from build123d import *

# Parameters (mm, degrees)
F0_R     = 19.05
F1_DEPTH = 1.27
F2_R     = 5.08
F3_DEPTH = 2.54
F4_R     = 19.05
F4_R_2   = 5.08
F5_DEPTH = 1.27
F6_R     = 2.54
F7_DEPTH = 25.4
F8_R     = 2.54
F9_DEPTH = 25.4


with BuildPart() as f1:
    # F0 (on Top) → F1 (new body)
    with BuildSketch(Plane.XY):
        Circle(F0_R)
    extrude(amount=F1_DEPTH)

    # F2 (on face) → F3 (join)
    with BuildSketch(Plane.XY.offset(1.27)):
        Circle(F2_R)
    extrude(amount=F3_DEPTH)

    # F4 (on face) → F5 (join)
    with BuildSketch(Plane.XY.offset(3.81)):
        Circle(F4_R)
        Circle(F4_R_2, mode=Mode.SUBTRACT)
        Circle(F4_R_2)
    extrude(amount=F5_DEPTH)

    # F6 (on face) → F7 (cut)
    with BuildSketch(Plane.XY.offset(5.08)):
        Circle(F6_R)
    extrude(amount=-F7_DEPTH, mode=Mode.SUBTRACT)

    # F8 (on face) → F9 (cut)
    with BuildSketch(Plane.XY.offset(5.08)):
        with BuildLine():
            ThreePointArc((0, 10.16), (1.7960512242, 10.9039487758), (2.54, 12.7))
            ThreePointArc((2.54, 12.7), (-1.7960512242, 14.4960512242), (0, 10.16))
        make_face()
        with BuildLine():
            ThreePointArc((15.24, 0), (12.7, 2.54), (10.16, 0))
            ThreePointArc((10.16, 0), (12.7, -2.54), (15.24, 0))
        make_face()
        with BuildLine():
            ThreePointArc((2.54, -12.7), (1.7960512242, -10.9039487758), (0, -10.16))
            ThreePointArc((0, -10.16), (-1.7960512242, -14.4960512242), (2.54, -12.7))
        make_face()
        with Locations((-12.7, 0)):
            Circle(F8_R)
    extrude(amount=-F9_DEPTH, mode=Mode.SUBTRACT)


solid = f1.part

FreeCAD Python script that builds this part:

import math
import FreeCAD as App
import Part
import Sketcher
from FreeCAD import Vector
Q = App.Units.Quantity

doc = App.newDocument("Part")
body = doc.addObject("PartDesign::Body", "Body")

sketch1 = body.newObject("Sketcher::SketchObject", "Sketch")
sketch1.AttachmentSupport = (doc.getObject("XY_Plane"), [""])
sketch1.MapMode = "FlatFace"
sketch1.addGeometry(Part.Circle(Vector(0, 0, 0), Vector(0, 0, 1), 19), False)
sketch1.addConstraint(Sketcher.Constraint("Coincident", 0, 3, -1, 1))
sketch1.addConstraint(Sketcher.Constraint("Diameter", 0, Q("1.5 in")))
pad1 = body.newObject("PartDesign::Pad", "Pad")
pad1.Profile = sketch1
pad1.Length = Q("0.05 in")

sketch2 = body.newObject("Sketcher::SketchObject", "Sketch001")
sketch2.AttachmentSupport = (doc.getObject("XY_Plane"), [""])
sketch2.MapMode = "FlatFace"
sketch2.AttachmentOffset = App.Placement(Vector(0, 0, 0.05 * 25.4), App.Rotation())
sketch2.addGeometry(Part.Circle(Vector(0, 0, 0), Vector(0, 0, 1), 5), False)
sketch2.addConstraint(Sketcher.Constraint("Coincident", 0, 3, -1, 1))
sketch2.addConstraint(Sketcher.Constraint("Diameter", 0, Q("0.4 in")))
pad2 = body.newObject("PartDesign::Pad", "Pad001")
pad2.Profile = sketch2
pad2.Length = Q("0.1 in")

sketch3 = body.newObject("Sketcher::SketchObject", "Sketch002")
sketch3.AttachmentSupport = (doc.getObject("XY_Plane"), [""])
sketch3.MapMode = "FlatFace"
sketch3.AttachmentOffset = App.Placement(Vector(0, 0, 0.15 * 25.4), App.Rotation())
sketch3.addGeometry(Part.Circle(Vector(0, 0, 0), Vector(0, 0, 1), 19), False)
sketch3.addConstraint(Sketcher.Constraint("Coincident", 0, 3, -1, 1))
sketch3.addConstraint(Sketcher.Constraint("Diameter", 0, Q("1.5 in")))
pad3 = body.newObject("PartDesign::Pad", "Pad002")
pad3.Profile = sketch3
pad3.Length = Q("0.05 in")

sketch4 = body.newObject("Sketcher::SketchObject", "Sketch003")
sketch4.AttachmentSupport = (doc.getObject("XY_Plane"), [""])
sketch4.MapMode = "FlatFace"
sketch4.AttachmentOffset = App.Placement(Vector(0, 0, 0.2 * 25.4), App.Rotation())
sketch4.addGeometry(Part.Circle(Vector(0, 0, 0), Vector(0, 0, 1), 2.5), False)
sketch4.addConstraint(Sketcher.Constraint("Coincident", 0, 3, -1, 1))
sketch4.addConstraint(Sketcher.Constraint("Diameter", 0, Q("0.2 in")))
pocket1 = body.newObject("PartDesign::Pocket", "Pocket")
pocket1.Profile = sketch4
pocket1.Length = Q("1 in")

sketch5 = body.newObject("Sketcher::SketchObject", "Sketch004")
sketch5.AttachmentSupport = (doc.getObject("XY_Plane"), [""])
sketch5.MapMode = "FlatFace"
sketch5.AttachmentOffset = App.Placement(Vector(0, 0, 0.2 * 25.4), App.Rotation())
sketch5.addGeometry(Part.ArcOfCircle(Part.Circle(Vector(0, 12.7, 0), Vector(0, 0, 1), 2.5), math.radians(-90), math.radians(0)), False)
sketch5.addGeometry(Part.ArcOfCircle(Part.Circle(Vector(0, 12.7, 0), Vector(0, 0, 1), 2.5), math.radians(0), math.radians(270)), False)
sketch5.addGeometry(Part.Circle(Vector(12.7, 0, 0), Vector(0, 0, 1), 2.5), False)
sketch5.addGeometry(Part.ArcOfCircle(Part.Circle(Vector(0, -12.7, 0), Vector(0, 0, 1), 2.5), math.radians(0), math.radians(90)), False)
sketch5.addGeometry(Part.ArcOfCircle(Part.Circle(Vector(0, -12.7, 0), Vector(0, 0, 1), 2.5), math.radians(90), math.radians(360)), False)
sketch5.addGeometry(Part.Circle(Vector(-12.7, 0, 0), Vector(0, 0, 1), 2.5), False)
sketch5.addConstraint(Sketcher.Constraint("Tangent", 0, 1, 1, 2))
sketch5.addConstraint(Sketcher.Constraint("Coincident", 1, 1, 0, 2))
sketch5.addConstraint(Sketcher.Constraint("Tangent", 3, 1, 4, 2))
sketch5.addConstraint(Sketcher.Constraint("Coincident", 4, 1, 3, 2))
sketch5.addConstraint(Sketcher.Constraint("Equal", 1, 2))
sketch5.addConstraint(Sketcher.Constraint("Equal", 2, 3))
sketch5.addConstraint(Sketcher.Constraint("Equal", 4, 5))
sketch5.addConstraint(Sketcher.Constraint("Symmetric", 0, 3, 3, 3, -1, 1))
sketch5.addConstraint(Sketcher.Constraint("Symmetric", 2, 3, 5, 3, -1, 1))
sketch5.addConstraint(Sketcher.Constraint("Symmetric", 1, 1, 3, 1, -1))
sketch5.addConstraint(Sketcher.Constraint("PointOnObject", 2, 3, -1))
sketch5.addConstraint(Sketcher.Constraint("PointOnObject", 0, 1, -2))
sketch5.addConstraint(Sketcher.Constraint("PointOnObject", 4, 1, -2))
sketch5.addConstraint(Sketcher.Constraint("Horizontal", 0, 3, 1, 1))
sketch5.addConstraint(Sketcher.Constraint("Diameter", 2, Q("0.2 in")))
sketch5.addConstraint(Sketcher.Constraint("DistanceY", 3, 3, 0, 3, Q("1 in")))
sketch5.addConstraint(Sketcher.Constraint("DistanceX", 5, 3, 2, 3, Q("1 in")))
pocket2 = body.newObject("PartDesign::Pocket", "Pocket001")
pocket2.Profile = sketch5
pocket2.Length = Q("1 in")

doc.recompute()
